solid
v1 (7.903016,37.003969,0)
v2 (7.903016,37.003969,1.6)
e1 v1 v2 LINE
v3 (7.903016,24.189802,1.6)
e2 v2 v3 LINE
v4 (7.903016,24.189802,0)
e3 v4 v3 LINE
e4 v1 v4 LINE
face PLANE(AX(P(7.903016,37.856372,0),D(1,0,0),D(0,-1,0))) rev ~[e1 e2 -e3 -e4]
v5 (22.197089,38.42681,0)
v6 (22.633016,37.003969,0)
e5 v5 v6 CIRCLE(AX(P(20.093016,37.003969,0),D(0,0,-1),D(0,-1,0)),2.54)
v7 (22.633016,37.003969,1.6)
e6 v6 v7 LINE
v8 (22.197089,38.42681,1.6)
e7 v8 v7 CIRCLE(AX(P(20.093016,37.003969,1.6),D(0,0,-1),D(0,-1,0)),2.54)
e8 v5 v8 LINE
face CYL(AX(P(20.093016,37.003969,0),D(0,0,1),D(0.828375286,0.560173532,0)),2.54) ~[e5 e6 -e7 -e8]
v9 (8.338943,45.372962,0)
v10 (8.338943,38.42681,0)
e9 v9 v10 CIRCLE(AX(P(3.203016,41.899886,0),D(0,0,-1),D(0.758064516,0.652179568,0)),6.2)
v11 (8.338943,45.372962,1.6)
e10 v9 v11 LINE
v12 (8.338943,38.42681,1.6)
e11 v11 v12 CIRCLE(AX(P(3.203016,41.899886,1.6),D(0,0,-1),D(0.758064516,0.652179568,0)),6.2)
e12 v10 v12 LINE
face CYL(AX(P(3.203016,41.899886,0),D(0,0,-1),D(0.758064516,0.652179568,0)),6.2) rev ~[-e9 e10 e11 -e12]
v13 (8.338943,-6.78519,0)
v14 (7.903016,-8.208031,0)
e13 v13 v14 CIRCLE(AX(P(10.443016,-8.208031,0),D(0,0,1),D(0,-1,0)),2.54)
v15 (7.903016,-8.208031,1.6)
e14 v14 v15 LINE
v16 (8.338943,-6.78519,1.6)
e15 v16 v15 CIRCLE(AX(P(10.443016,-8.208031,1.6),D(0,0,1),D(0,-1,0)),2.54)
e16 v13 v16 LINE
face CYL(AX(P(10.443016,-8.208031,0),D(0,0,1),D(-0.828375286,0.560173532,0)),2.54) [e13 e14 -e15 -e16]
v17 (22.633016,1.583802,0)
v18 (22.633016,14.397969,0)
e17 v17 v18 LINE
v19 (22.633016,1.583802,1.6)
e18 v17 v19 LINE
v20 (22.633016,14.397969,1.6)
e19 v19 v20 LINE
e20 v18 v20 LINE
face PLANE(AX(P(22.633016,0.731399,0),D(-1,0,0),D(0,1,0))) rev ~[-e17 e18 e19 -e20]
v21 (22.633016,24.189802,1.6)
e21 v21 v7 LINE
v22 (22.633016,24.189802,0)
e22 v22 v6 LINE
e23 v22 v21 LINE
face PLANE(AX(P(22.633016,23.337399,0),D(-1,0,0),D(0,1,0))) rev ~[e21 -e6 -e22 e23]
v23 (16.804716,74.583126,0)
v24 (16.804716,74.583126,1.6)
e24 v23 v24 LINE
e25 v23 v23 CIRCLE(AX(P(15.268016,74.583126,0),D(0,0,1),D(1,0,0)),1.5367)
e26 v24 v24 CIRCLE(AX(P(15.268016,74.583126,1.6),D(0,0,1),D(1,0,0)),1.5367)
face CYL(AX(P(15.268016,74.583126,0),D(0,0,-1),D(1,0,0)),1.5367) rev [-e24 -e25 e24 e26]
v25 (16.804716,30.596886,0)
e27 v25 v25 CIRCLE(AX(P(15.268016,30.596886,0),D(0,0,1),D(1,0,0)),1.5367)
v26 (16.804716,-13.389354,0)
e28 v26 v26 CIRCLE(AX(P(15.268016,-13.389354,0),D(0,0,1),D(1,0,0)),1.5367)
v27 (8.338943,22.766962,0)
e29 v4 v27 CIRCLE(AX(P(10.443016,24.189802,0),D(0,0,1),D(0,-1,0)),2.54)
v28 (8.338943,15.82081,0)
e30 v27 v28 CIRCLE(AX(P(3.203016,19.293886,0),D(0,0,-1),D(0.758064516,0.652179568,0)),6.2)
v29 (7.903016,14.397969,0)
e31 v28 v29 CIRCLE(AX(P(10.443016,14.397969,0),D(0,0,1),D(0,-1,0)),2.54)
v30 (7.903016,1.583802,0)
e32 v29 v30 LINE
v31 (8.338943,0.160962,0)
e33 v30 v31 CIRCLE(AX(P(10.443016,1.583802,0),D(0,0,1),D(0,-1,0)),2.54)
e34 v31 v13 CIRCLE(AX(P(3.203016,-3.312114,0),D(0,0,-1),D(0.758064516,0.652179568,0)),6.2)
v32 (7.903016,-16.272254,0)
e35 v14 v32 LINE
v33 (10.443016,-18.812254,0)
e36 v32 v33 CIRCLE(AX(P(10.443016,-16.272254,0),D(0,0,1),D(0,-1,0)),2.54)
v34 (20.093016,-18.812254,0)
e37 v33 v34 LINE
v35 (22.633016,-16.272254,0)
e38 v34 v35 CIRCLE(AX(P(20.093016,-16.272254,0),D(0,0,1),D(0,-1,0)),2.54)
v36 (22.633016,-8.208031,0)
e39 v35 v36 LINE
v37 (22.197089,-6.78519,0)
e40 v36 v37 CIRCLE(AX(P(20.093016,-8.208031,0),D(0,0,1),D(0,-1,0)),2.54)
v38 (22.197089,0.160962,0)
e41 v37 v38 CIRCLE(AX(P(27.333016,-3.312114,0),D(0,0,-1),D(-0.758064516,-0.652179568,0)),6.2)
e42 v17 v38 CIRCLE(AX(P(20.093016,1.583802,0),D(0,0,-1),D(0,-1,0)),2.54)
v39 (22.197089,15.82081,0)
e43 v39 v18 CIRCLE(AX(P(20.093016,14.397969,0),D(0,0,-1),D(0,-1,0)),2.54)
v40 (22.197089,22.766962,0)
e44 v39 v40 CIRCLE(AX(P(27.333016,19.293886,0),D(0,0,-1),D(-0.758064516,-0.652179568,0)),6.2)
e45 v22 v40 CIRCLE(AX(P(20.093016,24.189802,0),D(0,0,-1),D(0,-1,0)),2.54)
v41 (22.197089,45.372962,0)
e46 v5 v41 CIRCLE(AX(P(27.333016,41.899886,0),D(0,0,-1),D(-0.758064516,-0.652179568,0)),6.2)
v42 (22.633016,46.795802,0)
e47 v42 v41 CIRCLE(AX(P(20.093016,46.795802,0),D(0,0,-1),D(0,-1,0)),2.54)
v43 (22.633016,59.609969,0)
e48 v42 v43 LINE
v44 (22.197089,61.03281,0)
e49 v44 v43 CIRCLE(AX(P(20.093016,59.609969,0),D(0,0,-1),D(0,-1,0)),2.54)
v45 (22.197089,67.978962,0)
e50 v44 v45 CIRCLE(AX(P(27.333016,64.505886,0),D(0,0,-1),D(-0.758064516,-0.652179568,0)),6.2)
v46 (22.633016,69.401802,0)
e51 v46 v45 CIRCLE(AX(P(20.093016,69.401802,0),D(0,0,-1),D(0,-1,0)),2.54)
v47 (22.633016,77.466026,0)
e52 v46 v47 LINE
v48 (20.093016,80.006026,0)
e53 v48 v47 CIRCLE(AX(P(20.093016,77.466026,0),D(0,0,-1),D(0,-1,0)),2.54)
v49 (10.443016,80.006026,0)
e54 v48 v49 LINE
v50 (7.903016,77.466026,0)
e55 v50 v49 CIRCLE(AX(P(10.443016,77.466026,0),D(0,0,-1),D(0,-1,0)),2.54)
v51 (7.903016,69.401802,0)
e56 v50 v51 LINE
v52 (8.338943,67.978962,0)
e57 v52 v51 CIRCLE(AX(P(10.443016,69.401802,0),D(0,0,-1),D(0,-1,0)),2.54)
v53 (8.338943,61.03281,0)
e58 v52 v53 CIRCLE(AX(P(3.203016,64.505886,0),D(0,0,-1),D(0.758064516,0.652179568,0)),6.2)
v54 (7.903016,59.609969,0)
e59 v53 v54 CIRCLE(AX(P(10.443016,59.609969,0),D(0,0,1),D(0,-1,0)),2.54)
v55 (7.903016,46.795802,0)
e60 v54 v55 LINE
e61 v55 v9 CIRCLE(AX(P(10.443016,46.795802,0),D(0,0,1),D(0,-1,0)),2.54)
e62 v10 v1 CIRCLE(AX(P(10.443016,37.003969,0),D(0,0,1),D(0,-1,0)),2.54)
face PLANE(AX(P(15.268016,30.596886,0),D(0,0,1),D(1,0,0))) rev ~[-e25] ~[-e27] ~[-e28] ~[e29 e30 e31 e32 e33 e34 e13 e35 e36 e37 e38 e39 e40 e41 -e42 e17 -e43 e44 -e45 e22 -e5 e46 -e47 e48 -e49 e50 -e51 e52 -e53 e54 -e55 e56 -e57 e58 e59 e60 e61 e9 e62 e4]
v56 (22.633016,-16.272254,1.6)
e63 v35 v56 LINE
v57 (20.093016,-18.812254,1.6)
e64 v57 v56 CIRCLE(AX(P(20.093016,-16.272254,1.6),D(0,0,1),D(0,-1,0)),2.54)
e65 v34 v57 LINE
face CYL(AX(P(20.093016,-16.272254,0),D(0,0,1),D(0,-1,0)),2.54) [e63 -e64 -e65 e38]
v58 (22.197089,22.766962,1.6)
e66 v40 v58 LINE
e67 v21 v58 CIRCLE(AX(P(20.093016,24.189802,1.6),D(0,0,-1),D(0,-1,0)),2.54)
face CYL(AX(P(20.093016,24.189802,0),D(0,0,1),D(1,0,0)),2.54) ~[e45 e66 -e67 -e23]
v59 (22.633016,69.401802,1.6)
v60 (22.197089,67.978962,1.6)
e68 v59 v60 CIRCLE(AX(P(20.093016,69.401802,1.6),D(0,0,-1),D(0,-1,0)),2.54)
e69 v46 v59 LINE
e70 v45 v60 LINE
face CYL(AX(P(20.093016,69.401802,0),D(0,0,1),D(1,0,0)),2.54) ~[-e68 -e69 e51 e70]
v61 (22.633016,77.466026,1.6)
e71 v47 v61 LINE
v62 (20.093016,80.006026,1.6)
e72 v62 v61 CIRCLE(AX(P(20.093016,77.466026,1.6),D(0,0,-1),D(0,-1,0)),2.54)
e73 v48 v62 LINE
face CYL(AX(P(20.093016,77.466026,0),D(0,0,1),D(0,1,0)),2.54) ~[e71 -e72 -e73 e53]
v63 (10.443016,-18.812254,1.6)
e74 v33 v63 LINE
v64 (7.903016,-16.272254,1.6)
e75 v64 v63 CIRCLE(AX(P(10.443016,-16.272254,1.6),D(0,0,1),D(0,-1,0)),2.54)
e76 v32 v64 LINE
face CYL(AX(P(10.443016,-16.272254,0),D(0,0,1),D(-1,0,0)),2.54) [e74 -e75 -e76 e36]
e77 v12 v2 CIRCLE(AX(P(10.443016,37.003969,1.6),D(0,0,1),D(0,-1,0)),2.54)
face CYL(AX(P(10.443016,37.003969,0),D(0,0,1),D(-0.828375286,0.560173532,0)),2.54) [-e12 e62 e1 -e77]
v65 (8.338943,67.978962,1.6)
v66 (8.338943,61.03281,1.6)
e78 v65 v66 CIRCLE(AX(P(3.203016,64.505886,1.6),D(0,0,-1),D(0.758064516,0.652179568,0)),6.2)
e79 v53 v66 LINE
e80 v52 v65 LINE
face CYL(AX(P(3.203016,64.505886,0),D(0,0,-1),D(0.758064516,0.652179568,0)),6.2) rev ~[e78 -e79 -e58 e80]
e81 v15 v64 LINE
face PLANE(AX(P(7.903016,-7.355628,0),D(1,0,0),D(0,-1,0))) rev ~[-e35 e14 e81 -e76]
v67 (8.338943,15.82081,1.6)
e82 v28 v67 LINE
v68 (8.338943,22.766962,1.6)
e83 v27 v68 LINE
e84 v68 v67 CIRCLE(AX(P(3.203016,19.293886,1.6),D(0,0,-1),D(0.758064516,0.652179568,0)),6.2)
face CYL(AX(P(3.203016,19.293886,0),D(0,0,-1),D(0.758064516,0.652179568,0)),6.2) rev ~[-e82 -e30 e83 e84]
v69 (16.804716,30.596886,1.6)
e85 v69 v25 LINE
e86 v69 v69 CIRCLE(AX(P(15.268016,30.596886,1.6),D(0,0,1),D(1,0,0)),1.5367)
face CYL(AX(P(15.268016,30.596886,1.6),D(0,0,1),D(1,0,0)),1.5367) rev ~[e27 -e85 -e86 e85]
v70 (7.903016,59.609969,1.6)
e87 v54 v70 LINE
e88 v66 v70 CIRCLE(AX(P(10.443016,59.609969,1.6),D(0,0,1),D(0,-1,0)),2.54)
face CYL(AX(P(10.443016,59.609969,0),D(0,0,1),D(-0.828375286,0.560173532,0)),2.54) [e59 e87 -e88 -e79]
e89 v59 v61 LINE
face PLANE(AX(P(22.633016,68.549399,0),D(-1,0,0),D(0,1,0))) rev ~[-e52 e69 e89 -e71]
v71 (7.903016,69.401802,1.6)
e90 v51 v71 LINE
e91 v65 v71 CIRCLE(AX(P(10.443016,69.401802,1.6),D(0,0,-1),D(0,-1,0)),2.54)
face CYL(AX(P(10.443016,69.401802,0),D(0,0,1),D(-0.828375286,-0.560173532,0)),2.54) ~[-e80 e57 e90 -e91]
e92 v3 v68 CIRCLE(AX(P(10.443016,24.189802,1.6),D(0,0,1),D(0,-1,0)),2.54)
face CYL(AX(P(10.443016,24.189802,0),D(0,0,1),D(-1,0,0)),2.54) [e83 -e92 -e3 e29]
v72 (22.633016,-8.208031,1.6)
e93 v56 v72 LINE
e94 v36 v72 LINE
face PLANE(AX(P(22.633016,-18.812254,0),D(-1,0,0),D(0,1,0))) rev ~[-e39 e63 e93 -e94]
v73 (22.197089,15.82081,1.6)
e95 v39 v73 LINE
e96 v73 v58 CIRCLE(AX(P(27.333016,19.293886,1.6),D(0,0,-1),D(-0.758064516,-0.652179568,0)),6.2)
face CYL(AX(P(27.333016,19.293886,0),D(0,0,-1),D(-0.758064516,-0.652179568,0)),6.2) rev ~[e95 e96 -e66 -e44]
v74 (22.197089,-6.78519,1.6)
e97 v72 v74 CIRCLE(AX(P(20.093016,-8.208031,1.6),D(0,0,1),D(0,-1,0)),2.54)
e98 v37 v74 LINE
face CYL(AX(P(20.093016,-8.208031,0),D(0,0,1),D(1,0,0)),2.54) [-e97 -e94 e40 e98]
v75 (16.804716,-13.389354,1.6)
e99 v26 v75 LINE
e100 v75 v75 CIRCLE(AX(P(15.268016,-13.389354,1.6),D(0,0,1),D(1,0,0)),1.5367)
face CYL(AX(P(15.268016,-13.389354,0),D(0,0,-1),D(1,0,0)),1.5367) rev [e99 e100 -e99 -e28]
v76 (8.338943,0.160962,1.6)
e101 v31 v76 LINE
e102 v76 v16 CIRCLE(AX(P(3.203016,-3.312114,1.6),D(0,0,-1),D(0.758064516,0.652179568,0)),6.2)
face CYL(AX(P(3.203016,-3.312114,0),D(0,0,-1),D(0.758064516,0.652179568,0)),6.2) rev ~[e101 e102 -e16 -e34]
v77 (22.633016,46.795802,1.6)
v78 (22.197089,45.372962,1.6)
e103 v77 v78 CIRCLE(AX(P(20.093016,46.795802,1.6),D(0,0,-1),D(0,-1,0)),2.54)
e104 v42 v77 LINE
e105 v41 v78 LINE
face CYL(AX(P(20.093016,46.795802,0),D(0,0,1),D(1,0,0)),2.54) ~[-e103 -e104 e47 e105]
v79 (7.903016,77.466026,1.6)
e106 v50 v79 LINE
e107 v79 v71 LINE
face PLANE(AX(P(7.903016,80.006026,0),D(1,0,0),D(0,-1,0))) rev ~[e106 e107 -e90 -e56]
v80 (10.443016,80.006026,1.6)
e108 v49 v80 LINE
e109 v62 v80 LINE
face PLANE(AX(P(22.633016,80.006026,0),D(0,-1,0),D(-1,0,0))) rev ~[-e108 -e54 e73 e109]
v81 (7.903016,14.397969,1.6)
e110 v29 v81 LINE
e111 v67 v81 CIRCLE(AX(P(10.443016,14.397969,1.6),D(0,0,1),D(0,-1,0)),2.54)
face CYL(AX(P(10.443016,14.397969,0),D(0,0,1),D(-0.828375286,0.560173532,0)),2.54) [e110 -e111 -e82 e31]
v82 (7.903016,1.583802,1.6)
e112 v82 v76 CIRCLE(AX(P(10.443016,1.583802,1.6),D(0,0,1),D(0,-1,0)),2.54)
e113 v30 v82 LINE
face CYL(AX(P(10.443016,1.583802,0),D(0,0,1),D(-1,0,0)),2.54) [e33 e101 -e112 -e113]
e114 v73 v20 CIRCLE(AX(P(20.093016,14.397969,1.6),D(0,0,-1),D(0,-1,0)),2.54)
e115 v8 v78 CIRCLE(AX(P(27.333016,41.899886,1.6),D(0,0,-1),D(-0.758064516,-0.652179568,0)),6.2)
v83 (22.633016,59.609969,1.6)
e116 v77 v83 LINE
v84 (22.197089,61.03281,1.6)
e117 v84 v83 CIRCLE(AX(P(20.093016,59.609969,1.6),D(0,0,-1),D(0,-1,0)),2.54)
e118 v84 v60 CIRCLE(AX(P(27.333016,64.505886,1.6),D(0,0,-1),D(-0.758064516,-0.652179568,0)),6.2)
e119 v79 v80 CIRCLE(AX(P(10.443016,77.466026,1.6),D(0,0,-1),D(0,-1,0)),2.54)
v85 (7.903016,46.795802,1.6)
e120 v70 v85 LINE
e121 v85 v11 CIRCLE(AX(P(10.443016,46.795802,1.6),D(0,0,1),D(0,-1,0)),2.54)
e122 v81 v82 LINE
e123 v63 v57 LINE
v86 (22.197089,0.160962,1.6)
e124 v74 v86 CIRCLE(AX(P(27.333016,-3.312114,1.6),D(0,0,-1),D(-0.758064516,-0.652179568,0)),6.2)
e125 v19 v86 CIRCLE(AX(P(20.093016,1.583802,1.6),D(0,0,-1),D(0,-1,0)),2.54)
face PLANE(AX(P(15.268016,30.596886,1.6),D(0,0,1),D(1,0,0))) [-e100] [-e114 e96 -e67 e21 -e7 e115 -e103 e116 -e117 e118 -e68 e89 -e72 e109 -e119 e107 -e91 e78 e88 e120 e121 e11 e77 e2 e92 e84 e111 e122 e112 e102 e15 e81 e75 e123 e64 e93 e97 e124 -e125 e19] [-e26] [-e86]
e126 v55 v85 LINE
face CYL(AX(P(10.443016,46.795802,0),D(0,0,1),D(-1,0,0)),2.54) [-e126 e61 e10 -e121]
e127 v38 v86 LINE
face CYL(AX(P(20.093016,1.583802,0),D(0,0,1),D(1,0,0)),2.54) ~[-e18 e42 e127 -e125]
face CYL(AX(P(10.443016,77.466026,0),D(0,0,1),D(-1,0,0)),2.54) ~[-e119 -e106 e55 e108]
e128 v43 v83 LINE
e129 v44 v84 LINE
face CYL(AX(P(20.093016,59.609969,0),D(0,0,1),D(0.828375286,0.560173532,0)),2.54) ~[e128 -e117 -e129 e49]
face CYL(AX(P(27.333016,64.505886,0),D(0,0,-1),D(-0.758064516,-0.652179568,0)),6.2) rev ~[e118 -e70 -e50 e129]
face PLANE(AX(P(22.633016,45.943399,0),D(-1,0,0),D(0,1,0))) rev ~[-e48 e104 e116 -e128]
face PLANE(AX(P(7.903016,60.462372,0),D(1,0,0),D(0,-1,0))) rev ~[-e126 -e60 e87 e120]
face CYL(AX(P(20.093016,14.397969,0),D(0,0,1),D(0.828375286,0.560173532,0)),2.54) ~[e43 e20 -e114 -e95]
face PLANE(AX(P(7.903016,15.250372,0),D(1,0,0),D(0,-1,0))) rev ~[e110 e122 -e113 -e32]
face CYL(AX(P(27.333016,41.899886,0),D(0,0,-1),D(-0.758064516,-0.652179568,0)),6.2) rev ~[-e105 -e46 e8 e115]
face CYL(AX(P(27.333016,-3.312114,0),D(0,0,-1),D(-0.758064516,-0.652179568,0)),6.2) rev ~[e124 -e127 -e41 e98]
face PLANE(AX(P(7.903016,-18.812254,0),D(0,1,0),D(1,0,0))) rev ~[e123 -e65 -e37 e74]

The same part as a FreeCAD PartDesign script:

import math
import FreeCAD as App
import Part
import Sketcher
from FreeCAD import Vector
Q = App.Units.Quantity


def edges_at(feature, points):
    """Names of the edges that pass closest to the given points."""
    edges = feature.Shape.Edges
    near = lambda p: min(range(len(edges)), key=lambda i: edges[i].distToShape(Part.Vertex(*p))[0])
    return sorted({f"Edge{near(p) + 1}" for p in points})

doc = App.newDocument("Part")
body = doc.addObject("PartDesign::Body", "Body")

sketch1 = body.newObject("Sketcher::SketchObject", "Sketch")
sketch1.AttachmentSupport = (doc.getObject("XY_Plane"), [""])
sketch1.MapMode = "FlatFace"
sketch1.addGeometry(Part.ArcOfCircle(Part.Circle(Vector(3.2, 64.5, 0), Vector(0, 0, 1), 6.2), math.radians(-41), math.radians(41)), False)
sketch1.addGeometry(Part.LineSegment(Vector(7.9, 60.5, 0), Vector(7.9, 45.9, 0)), False)
sketch1.addGeometry(Part.ArcOfCircle(Part.Circle(Vector(3.2, 41.9, 0), Vector(0, 0, 1), 6.2), math.radians(-41), math.radians(41)), False)
sketch1.addGeometry(Part.LineSegment(Vector(7.9, 37.9, 0), Vector(7.9, 23.3, 0)), False)
sketch1.addGeometry(Part.ArcOfCircle(Part.Circle(Vector(3.2, 19.3, 0), Vector(0, 0, 1), 6.2), math.radians(-41), math.radians(41)), False)
sketch1.addGeometry(Part.LineSegment(Vector(7.9, 15.3, 0), Vector(7.9, 0.7, 0)), False)
sketch1.addGeometry(Part.ArcOfCircle(Part.Circle(Vector(3.2, -3.3, 0), Vector(0, 0, 1), 6.2), math.radians(-41), math.radians(41)), False)
sketch1.addGeometry(Part.LineSegment(Vector(7.9, -7.4, 0), Vector(7.9, -18.8, 0)), False)
sketch1.addGeometry(Part.LineSegment(Vector(7.9, -18.8, 0), Vector(22.6, -18.8, 0)), False)
sketch1.addGeometry(Part.LineSegment(Vector(22.6, -18.8, 0), Vector(22.6, -7.4, 0)), False)
sketch1.addGeometry(Part.ArcOfCircle(Part.Circle(Vector(27.3, -3.3, 0), Vector(0, 0, 1), 6.2), math.radians(139), math.radians(221)), False)
sketch1.addGeometry(Part.LineSegment(Vector(22.6, 0.7, 0), Vector(22.6, 15.3, 0)), False)
sketch1.addGeometry(Part.ArcOfCircle(Part.Circle(Vector(27.3, 19.3, 0), Vector(0, 0, 1), 6.2), math.radians(139), math.radians(221)), False)
sketch1.addGeometry(Part.LineSegment(Vector(22.6, 23.3, 0), Vector(22.6, 37.9, 0)), False)
sketch1.addGeometry(Part.ArcOfCircle(Part.Circle(Vector(27.3, 41.9, 0), Vector(0, 0, 1), 6.2), math.radians(139), math.radians(221)), False)
sketch1.addGeometry(Part.LineSegment(Vector(22.6, 45.9, 0), Vector(22.6, 60.5, 0)), False)
sketch1.addGeometry(Part.ArcOfCircle(Part.Circle(Vector(27.3, 64.5, 0), Vector(0, 0, 1), 6.2), math.radians(139), math.radians(221)), False)
sketch1.addGeometry(Part.LineSegment(Vector(22.6, 68.5, 0), Vector(22.6, 80, 0)), False)
sketch1.addGeometry(Part.LineSegment(Vector(22.6, 80, 0), Vector(7.9, 80, 0)), False)
sketch1.addGeometry(Part.LineSegment(Vector(7.9, 80, 0), Vector(7.9, 68.5, 0)), False)
sketch1.addGeometry(Part.Circle(Vector(15.3, -13.4, 0), Vector(0, 0, 1), 1.5), False)
sketch1.addGeometry(Part.Circle(Vector(15.3, 74.6, 0), Vector(0, 0, 1), 1.5), False)
sketch1.addConstraint(Sketcher.Constraint("Coincident", 0, 1, 1, 1))
sketch1.addConstraint(Sketcher.Constraint("Coincident", 1, 2, 2, 2))
sketch1.addConstraint(Sketcher.Constraint("Coincident", 2, 1, 3, 1))
sketch1.addConstraint(Sketcher.Constraint("Coincident", 3, 2, 4, 2))
sketch1.addConstraint(Sketcher.Constraint("Coincident", 4, 1, 5, 1))
sketch1.addConstraint(Sketcher.Constraint("Coincident", 5, 2, 6, 2))
sketch1.addConstraint(Sketcher.Constraint("Coincident", 6, 1, 7, 1))
sketch1.addConstraint(Sketcher.Constraint("Coincident", 7, 2, 8, 1))
sketch1.addConstraint(Sketcher.Constraint("Coincident", 8, 2, 9, 1))
sketch1.addConstraint(Sketcher.Constraint("Coincident", 9, 2, 10, 2))
sketch1.addConstraint(Sketcher.Constraint("Coincident", 10, 1, 11, 1))
sketch1.addConstraint(Sketcher.Constraint("Coincident", 11, 2, 12, 2))
sketch1.addConstraint(Sketcher.Constraint("Coincident", 12, 1, 13, 1))
sketch1.addConstraint(Sketcher.Constraint("Coincident", 13, 2, 14, 2))
sketch1.addConstraint(Sketcher.Constraint("Coincident", 14, 1, 15, 1))
sketch1.addConstraint(Sketcher.Constraint("Coincident", 15, 2, 16, 2))
sketch1.addConstraint(Sketcher.Constraint("Coincident", 16, 1, 17, 1))
sketch1.addConstraint(Sketcher.Constraint("Coincident", 17, 2, 18, 1))
sketch1.addConstraint(Sketcher.Constraint("Coincident", 18, 2, 19, 1))
sketch1.addConstraint(Sketcher.Constraint("Coincident", 19, 2, 0, 2))
sketch1.addConstraint(Sketcher.Constraint("Vertical", 1))
sketch1.addConstraint(Sketcher.Constraint("Vertical", 3))
sketch1.addConstraint(Sketcher.Constraint("Vertical", 5))
sketch1.addConstraint(Sketcher.Constraint("Vertical", 7))
sketch1.addConstraint(Sketcher.Constraint("Horizontal", 8))
sketch1.addConstraint(Sketcher.Constraint("Vertical", 9))
sketch1.addConstraint(Sketcher.Constraint("Vertical", 11))
sketch1.addConstraint(Sketcher.Constraint("Vertical", 13))
sketch1.addConstraint(Sketcher.Constraint("Vertical", 15))
sketch1.addConstraint(Sketcher.Constraint("Vertical", 17))
sketch1.addConstraint(Sketcher.Constraint("Horizontal", 18))
sketch1.addConstraint(Sketcher.Constraint("Vertical", 19))
sketch1.addConstraint(Sketcher.Constraint("Equal", 0, 2))
sketch1.addConstraint(Sketcher.Constraint("Equal", 2, 4))
sketch1.addConstraint(Sketcher.Constraint("Equal", 4, 6))
sketch1.addConstraint(Sketcher.Constraint("Equal", 6, 10))
sketch1.addConstraint(Sketcher.Constraint("Equal", 10, 12))
sketch1.addConstraint(Sketcher.Constraint("Equal", 12, 14))
sketch1.addConstraint(Sketcher.Constraint("Equal", 14, 16))
sketch1.addConstraint(Sketcher.Constraint("Equal", 20, 21))
sketch1.addConstraint(Sketcher.Constraint("Horizontal", 6, 3, 10, 3))
sketch1.addConstraint(Sketcher.Constraint("Horizontal", 4, 3, 12, 3))
sketch1.addConstraint(Sketcher.Constraint("Horizontal", 2, 3, 14, 3))
sketch1.addConstraint(Sketcher.Constraint("Horizontal", 0, 3, 16, 3))
sketch1.addConstraint(Sketcher.Constraint("Horizontal", 6, 1, 9, 2))
sketch1.addConstraint(Sketcher.Constraint("Horizontal", 5, 2, 10, 1))
sketch1.addConstraint(Sketcher.Constraint("Horizontal", 4, 1, 11, 2))
sketch1.addConstraint(Sketcher.Constraint("Horizontal", 3, 2, 12, 1))
sketch1.addConstraint(Sketcher.Constraint("Horizontal", 2, 1, 13, 2))
sketch1.addConstraint(Sketcher.Constraint("Horizontal", 1, 2, 14, 1))
sketch1.addConstraint(Sketcher.Constraint("Horizontal", 0, 1, 15, 2))
sketch1.addConstraint(Sketcher.Constraint("Horizontal", 16, 1, 19, 2))
sketch1.addConstraint(Sketcher.Constraint("Vertical", 0, 3, 2, 3))
sketch1.addConstraint(Sketcher.Constraint("Vertical", 2, 3, 4, 3))
sketch1.addConstraint(Sketcher.Constraint("Vertical", 4, 3, 6, 3))
sketch1.addConstraint(Sketcher.Constraint("Vertical", 20, 3, 21, 3))
sketch1.addConstraint(Sketcher.Constraint("Vertical", 1, 2, 2, 1))
sketch1.addConstraint(Sketcher.Constraint("Vertical", 3, 2, 4, 1))
sketch1.addConstraint(Sketcher.Constraint("Vertical", 5, 2, 6, 1))
sketch1.addConstraint(Sketcher.Constraint("Vertical", 15, 2, 16, 1))
sketch1.addConstraint(Sketcher.Constraint("Equal", 1, 3))
sketch1.addConstraint(Sketcher.Constraint("Equal", 3, 5))
sketch1.addConstraint(Sketcher.Constraint("Equal", 9, 17))
sketch1.addConstraint(Sketcher.Constraint("Radius", 0, Q("6.2 mm")))
sketch1.addConstraint(Sketcher.Constraint("Diameter", 20, Q("3.0734 mm")))
sketch1.addConstraint(Sketcher.Constraint("DistanceX", 8, 1, 8, 2, Q("14.73 mm")))
sketch1.addConstraint(Sketcher.Constraint("DistanceX", 0, 3, 0, 1, Q("4.7 mm")))
sketch1.addConstraint(Sketcher.Constraint("DistanceY", 2, 3, 0, 3, Q("22.606 mm")))
sketch1.addConstraint(Sketcher.Constraint("DistanceX", 6, 3, 20, 3, Q("12.065 mm")))
sketch1.addConstraint(Sketcher.Constraint("DistanceY", -1, 1, 1, 2, Q("45.943399 mm")))
sketch1.addConstraint(Sketcher.Constraint("DistanceY", 7, 2, 20, 3, Q("5.4229 mm")))
sketch1.addConstraint(Sketcher.Constraint("DistanceY", 21, 3, 17, 2, Q("5.4229 mm")))
sketch1.addConstraint(Sketcher.Constraint("DistanceY", 7, 2, 7, 1, Q("11.456627 mm")))
sketch1.addConstraint(Sketcher.Constraint("DistanceX", -1, 1, 0, 3, Q("3.203016 mm")))
pad1 = body.newObject("PartDesign::Pad", "Pad")
pad1.Profile = sketch1
pad1.Length = 1.6
doc.recompute()

fillet = body.newObject("PartDesign::Fillet", "Fillet")
fillet.Base = (pad1, edges_at(pad1, [
    (7.903, 80.006, 0.8),
    (22.633, 80.006, 0.8),
    (22.633, 68.549, 0.8),
    (22.633, 60.462, 0.8),
    (22.633, 45.943, 0.8),
    (22.633, 37.856, 0.8),
    (22.633, 23.337, 0.8),
    (22.633, 15.25, 0.8),
    (22.633, 0.731, 0.8),
    (22.633, -7.356, 0.8),
    (22.633, -18.812, 0.8),
    (7.903, -18.812, 0.8),
    (7.903, -7.356, 0.8),
    (7.903, 0.731, 0.8),
    (7.903, 15.25, 0.8),
    (7.903, 23.337, 0.8),
    (7.903, 37.856, 0.8),
    (7.903, 45.943, 0.8),
    (7.903, 60.462, 0.8),
    (7.903, 68.549, 0.8),
]))
fillet.Radius = 2.54

sketch2 = body.newObject("Sketcher::SketchObject", "Sketch001")
sketch2.AttachmentSupport = (doc.getObject("XY_Plane"), [""])
sketch2.MapMode = "FlatFace"
sketch2.AttachmentOffset = App.Placement(Vector(0, 0, 1.6), App.Rotation())
sketch2.addGeometry(Part.Circle(Vector(15.3, 30.6, 0), Vector(0, 0, 1), 1.5), False)
sketch2.addConstraint(Sketcher.Constraint("Diameter", 0, Q("3.0734 mm")))
sketch2.addConstraint(Sketcher.Constraint("DistanceX", -1, 1, 0, 3, Q("15.268016 mm")))
sketch2.addConstraint(Sketcher.Constraint("DistanceY", -1, 1, 0, 3, Q("30.596886 mm")))
pocket1 = body.newObject("PartDesign::Pocket", "Pocket")
pocket1.Profile = sketch2
pocket1.Type = "ThroughAll"

doc.recompute()
